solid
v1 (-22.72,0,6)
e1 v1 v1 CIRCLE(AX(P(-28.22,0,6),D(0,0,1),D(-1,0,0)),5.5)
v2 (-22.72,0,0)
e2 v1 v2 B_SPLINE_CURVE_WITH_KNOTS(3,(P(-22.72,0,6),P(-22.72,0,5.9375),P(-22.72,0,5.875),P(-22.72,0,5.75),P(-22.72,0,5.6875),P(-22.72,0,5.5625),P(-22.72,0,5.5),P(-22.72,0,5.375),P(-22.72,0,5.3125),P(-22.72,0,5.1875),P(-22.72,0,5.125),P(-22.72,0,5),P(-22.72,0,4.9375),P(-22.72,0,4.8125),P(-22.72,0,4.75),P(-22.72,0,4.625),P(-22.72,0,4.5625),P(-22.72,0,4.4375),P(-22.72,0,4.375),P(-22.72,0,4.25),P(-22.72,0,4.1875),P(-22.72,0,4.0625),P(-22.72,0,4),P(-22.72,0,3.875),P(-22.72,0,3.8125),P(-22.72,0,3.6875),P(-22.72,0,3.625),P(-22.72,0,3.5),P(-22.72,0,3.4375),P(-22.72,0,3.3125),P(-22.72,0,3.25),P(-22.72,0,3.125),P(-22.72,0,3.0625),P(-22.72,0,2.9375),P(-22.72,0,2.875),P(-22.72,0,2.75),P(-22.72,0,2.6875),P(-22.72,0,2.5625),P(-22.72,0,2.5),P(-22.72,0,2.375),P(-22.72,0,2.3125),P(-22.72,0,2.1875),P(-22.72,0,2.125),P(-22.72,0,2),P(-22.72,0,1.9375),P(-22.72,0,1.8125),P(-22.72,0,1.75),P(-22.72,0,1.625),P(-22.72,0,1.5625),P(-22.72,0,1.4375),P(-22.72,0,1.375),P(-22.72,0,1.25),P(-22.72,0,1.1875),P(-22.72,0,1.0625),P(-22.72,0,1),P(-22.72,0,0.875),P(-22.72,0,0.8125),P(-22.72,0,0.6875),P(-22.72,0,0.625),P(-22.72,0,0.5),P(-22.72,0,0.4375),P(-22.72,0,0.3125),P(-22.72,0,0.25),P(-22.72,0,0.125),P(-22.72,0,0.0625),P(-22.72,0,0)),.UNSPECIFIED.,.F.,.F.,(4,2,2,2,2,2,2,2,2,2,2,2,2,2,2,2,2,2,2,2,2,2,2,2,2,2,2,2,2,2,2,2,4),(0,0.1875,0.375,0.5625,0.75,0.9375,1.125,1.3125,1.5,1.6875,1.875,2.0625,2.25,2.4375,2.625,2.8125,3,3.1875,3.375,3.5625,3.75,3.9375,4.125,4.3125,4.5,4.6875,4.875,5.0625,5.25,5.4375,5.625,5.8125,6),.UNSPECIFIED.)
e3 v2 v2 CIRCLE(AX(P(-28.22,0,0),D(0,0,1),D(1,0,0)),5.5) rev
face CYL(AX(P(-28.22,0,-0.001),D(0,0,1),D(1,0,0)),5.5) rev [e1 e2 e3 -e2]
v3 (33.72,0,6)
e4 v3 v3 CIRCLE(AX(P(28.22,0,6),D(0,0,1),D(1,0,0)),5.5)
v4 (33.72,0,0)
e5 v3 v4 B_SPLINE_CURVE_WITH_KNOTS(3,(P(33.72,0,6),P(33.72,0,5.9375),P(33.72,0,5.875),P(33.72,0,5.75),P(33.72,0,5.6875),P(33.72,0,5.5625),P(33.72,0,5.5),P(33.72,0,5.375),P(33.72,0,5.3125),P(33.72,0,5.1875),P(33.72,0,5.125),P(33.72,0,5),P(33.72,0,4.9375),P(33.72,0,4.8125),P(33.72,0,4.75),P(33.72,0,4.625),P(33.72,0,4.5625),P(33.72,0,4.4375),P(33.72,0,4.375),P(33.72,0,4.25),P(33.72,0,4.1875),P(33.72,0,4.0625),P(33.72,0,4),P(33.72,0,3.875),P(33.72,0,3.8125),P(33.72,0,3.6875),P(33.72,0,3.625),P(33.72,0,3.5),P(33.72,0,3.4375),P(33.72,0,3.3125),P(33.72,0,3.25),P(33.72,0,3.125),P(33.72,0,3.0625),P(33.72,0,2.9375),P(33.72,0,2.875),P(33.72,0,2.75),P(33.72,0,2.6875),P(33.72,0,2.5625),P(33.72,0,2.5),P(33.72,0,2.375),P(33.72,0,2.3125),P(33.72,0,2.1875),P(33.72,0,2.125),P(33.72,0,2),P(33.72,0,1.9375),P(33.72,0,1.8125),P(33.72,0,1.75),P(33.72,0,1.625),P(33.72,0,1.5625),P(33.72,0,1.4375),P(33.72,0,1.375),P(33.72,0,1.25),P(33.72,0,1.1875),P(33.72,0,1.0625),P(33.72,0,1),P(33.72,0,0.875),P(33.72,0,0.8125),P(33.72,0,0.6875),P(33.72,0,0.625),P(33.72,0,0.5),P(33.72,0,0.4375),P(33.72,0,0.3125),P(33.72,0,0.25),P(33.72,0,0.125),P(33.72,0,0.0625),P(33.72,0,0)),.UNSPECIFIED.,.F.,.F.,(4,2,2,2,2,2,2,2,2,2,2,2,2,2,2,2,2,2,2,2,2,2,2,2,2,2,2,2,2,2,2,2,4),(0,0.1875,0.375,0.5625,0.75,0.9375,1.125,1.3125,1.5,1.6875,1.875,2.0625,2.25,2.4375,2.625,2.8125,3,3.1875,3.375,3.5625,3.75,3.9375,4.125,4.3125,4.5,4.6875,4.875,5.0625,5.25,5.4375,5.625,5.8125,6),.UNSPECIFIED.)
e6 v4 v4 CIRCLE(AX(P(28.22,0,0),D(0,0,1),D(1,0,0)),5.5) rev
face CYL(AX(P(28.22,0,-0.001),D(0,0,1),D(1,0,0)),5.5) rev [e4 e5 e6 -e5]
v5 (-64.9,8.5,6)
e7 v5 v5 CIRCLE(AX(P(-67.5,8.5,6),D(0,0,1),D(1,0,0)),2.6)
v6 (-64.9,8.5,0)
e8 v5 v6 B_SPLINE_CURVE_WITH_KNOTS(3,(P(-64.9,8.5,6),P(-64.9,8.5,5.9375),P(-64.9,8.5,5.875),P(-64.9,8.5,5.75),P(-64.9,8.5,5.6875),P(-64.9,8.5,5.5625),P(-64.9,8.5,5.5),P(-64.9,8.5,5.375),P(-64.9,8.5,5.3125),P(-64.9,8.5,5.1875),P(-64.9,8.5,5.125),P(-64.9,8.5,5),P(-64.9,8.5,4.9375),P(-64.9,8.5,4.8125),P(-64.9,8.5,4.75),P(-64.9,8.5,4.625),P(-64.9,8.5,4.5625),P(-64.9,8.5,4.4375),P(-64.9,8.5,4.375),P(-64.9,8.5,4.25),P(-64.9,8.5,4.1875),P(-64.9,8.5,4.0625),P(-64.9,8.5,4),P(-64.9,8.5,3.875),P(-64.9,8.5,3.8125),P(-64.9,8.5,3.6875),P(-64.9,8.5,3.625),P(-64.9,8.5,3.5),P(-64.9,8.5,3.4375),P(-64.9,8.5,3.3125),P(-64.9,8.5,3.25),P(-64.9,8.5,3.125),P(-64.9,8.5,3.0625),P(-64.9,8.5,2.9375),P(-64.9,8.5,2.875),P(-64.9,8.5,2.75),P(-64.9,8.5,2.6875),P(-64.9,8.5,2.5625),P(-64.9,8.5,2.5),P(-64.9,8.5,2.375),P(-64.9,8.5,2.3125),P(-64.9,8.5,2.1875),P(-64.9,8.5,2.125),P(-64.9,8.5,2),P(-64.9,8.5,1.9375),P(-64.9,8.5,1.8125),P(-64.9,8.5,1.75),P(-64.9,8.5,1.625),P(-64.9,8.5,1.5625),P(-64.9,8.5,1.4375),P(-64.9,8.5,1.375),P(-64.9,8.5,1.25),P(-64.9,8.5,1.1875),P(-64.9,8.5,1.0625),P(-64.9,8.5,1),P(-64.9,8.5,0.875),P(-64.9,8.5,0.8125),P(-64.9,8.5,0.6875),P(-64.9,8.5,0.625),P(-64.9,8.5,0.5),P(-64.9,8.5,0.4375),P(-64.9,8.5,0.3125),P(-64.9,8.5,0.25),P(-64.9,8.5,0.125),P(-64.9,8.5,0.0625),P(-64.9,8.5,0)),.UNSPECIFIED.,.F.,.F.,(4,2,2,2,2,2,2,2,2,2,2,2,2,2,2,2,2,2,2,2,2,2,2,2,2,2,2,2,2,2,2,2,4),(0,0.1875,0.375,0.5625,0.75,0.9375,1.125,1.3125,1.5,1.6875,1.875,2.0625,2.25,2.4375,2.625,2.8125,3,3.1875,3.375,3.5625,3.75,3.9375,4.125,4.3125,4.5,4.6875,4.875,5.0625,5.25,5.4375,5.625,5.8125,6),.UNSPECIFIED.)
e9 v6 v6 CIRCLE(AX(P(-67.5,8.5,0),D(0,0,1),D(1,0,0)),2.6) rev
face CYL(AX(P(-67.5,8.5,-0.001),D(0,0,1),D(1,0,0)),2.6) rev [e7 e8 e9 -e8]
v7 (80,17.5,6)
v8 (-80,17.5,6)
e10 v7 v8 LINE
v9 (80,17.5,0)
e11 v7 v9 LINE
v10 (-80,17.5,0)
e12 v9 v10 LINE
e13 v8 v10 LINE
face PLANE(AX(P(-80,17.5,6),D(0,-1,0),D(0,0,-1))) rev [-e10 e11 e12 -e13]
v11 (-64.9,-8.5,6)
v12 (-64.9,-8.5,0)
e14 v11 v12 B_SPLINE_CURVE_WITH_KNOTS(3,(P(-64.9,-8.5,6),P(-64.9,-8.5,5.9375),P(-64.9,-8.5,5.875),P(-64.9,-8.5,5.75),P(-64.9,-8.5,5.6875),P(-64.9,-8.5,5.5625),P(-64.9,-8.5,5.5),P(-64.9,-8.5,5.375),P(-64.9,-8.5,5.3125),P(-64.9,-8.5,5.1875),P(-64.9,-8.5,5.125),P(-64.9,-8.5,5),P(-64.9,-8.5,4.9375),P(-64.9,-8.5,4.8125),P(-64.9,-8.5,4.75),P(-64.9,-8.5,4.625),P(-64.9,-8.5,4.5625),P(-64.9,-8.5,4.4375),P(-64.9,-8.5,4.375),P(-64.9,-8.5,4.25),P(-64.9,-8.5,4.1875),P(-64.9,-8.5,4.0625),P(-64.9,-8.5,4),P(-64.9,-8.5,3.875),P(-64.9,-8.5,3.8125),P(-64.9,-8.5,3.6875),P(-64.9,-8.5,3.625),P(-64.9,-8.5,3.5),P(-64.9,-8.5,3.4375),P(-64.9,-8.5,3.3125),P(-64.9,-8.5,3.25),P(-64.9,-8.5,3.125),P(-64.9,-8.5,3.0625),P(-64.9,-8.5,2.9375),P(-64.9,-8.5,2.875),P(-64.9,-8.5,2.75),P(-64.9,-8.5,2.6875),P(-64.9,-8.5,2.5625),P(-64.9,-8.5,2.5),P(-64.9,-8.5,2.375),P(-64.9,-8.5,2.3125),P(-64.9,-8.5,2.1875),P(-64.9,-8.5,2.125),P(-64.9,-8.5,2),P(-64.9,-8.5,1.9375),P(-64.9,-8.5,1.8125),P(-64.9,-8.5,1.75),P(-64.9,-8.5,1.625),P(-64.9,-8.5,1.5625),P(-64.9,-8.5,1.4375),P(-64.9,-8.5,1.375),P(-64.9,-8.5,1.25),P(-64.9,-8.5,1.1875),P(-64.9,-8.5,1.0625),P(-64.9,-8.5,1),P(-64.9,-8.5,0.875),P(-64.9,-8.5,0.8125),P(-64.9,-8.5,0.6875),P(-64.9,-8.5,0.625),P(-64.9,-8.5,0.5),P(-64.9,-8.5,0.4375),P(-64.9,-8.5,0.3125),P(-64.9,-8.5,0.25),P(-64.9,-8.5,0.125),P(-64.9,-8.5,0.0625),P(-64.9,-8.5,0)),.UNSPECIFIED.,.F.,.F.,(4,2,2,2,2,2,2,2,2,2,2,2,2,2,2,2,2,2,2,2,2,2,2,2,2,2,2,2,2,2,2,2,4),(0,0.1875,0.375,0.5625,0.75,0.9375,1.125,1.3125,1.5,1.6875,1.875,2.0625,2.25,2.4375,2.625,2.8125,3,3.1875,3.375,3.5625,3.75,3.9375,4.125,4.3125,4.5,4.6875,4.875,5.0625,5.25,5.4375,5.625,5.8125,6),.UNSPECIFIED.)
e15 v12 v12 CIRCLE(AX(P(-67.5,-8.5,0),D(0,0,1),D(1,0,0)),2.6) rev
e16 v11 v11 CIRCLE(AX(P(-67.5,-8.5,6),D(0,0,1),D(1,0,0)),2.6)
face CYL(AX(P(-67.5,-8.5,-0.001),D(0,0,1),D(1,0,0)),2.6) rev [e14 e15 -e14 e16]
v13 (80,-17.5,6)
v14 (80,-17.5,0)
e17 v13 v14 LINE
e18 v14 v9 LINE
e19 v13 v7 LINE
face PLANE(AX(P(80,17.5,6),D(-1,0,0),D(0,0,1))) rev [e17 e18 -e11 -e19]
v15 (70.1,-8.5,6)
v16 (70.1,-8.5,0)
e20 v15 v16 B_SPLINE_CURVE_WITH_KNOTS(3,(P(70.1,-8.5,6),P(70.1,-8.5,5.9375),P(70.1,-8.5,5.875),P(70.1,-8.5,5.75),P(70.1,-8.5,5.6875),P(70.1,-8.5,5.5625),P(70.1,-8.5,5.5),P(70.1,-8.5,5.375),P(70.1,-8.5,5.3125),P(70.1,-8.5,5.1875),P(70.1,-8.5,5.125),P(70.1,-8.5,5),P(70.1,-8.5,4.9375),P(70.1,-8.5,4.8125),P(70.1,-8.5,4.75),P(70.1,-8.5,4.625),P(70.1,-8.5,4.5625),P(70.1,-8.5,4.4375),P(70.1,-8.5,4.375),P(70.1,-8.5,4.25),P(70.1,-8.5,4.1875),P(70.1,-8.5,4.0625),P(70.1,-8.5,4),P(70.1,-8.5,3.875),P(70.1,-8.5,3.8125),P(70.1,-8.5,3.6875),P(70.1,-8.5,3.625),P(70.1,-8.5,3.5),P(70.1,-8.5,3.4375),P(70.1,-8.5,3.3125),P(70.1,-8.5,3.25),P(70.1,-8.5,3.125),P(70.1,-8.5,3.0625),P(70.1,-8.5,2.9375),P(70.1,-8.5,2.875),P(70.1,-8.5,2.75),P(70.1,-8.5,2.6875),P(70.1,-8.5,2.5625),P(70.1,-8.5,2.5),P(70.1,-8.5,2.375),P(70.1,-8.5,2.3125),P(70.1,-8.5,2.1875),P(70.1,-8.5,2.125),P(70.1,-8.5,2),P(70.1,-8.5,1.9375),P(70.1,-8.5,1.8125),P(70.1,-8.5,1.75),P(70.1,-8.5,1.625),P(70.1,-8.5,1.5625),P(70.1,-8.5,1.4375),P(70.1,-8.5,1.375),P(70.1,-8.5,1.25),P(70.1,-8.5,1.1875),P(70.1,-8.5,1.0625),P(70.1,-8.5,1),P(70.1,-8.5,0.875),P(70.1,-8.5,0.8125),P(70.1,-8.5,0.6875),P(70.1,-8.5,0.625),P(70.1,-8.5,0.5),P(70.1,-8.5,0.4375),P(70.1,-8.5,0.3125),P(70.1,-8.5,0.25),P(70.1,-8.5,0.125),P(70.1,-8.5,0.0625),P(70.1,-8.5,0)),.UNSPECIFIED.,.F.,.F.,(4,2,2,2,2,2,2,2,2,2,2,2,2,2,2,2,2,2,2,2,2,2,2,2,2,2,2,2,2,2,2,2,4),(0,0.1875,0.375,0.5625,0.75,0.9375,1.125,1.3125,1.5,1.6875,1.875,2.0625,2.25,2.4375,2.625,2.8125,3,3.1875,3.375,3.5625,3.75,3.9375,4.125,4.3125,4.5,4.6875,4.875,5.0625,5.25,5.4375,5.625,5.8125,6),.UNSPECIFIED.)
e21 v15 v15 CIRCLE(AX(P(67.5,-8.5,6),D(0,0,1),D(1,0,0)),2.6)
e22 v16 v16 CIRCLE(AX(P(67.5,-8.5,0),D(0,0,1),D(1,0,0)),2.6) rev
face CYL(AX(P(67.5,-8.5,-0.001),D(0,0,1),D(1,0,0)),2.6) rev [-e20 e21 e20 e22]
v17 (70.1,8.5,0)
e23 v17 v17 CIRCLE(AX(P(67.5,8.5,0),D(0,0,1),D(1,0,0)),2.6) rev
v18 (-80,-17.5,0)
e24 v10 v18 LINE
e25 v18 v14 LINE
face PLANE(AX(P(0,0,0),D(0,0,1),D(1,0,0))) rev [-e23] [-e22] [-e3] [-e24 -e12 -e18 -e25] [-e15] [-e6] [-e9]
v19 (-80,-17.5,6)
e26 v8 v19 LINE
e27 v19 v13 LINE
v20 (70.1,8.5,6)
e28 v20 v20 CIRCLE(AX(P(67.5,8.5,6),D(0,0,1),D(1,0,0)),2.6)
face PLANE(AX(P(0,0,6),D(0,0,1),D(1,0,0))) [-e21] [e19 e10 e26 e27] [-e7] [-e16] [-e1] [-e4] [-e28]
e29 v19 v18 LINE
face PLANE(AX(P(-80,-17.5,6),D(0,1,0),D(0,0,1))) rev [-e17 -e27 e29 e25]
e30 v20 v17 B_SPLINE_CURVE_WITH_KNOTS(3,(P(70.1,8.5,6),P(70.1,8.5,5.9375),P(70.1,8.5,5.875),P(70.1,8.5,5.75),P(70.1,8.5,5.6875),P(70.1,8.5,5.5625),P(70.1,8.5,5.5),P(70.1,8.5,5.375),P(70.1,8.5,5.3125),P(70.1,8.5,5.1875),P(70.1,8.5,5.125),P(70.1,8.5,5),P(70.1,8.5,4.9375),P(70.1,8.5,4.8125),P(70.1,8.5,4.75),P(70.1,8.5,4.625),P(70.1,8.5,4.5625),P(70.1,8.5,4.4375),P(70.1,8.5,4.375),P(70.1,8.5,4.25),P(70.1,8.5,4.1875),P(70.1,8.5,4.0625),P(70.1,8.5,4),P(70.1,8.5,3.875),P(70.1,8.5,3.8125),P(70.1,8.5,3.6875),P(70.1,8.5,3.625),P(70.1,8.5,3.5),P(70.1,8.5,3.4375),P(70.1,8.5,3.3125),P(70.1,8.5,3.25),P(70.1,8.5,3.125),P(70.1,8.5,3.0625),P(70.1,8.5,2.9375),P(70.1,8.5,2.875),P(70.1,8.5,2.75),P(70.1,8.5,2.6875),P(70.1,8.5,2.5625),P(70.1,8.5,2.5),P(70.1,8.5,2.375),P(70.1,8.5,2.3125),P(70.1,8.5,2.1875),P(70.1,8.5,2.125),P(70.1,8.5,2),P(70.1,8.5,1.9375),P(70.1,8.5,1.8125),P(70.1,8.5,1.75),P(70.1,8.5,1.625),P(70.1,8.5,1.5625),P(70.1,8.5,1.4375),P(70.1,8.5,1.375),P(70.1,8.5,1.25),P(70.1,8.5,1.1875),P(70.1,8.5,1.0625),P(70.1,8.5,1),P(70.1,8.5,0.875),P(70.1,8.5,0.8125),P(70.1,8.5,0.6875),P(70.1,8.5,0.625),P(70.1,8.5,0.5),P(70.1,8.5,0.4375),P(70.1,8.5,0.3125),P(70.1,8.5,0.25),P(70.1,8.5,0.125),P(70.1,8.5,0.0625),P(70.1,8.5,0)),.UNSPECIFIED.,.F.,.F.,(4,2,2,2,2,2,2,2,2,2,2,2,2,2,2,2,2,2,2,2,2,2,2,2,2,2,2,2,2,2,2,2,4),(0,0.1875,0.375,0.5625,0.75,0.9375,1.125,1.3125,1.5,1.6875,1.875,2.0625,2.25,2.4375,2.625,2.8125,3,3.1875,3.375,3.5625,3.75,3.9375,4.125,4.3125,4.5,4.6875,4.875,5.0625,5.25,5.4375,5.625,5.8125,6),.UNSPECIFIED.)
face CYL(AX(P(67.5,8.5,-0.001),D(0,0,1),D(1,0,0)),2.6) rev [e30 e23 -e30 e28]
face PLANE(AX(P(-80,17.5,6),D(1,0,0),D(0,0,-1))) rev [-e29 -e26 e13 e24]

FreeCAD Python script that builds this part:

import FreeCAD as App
import Part
import Sketcher
from FreeCAD import Vector
Q = App.Units.Quantity


def add_polygon(sketch, points):
    """Adds a closed chain of lines whose ends are joined by coincident constraints."""
    first, n = sketch.GeometryCount, len(points)
    for a, b in zip(points, points[1:] + points[:1]):
        sketch.addGeometry(Part.LineSegment(App.Vector(*a, 0), App.Vector(*b, 0)), False)
    for i in range(n):
        sketch.addConstraint(Sketcher.Constraint("Coincident", first + i, 2, first + (i + 1) % n, 1))

doc = App.newDocument("Part")
body = doc.addObject("PartDesign::Body", "Body")

# Sketch on XY plane
sketch1 = doc.addObject("Sketcher::SketchObject", "Sketch")
body.addObject(sketch1)
sketch1.AttachmentSupport = (doc.XY_Plane, [""])
sketch1.MapMode = "FlatFace"
add_polygon(sketch1, [(-80, 18), (-80, -18), (80, -18), (80, 18)])  # lines 0-3
sketch1.addConstraint([
    Sketcher.Constraint("Vertical", 0),
    Sketcher.Constraint("Horizontal", 1),
    Sketcher.Constraint("Vertical", 2),
    Sketcher.Constraint("Horizontal", 3),
    Sketcher.Constraint("Symmetric", 0, 2, 2, 2, -1, 1),
    Sketcher.Constraint("DistanceX", 1, 1, 1, 2, Q("160 mm")),
    Sketcher.Constraint("DistanceY", 0, 2, 0, 1, Q("35 mm")),
])
pad1 = doc.addObject("PartDesign::Pad", "Pad")
body.addObject(pad1)
pad1.Profile = sketch1
pad1.Length = 6

# Sketch on XY plane
sketch2 = doc.addObject("Sketcher::SketchObject", "Sketch001")
body.addObject(sketch2)
sketch2.AttachmentSupport = (doc.XY_Plane, [""])
sketch2.MapMode = "FlatFace"
sketch2.AttachmentOffset = App.Placement(Vector(0, 0, 6), App.Rotation())
sketch2.addGeometry(Part.Circle(Vector(67.5, 8.5, 0), Vector(0, 0, 1), 2.6), False)
sketch2.addConstraint([
    Sketcher.Constraint("Diameter", 0, Q("5.2 mm")),
    Sketcher.Constraint("DistanceX", -1, 1, 0, 3, Q("67.5 mm")),
    Sketcher.Constraint("DistanceY", -1, 1, 0, 3, Q("8.5 mm")),
])
pocket1 = doc.addObject("PartDesign::Pocket", "Pocket")
body.addObject(pocket1)
pocket1.Profile = sketch2
pocket1.Type = "UpToFirst"

# Sketch on XY plane
sketch3 = doc.addObject("Sketcher::SketchObject", "Sketch002")
body.addObject(sketch3)
sketch3.AttachmentSupport = (doc.XY_Plane, [""])
sketch3.MapMode = "FlatFace"
sketch3.AttachmentOffset = App.Placement(Vector(0, 0, 6), App.Rotation())
sketch3.addGeometry(Part.Circle(Vector(67.5, -8.5, 0), Vector(0, 0, 1), 2.6), False)
sketch3.addConstraint([
    Sketcher.Constraint("Diameter", 0, Q("5.2 mm")),
    Sketcher.Constraint("DistanceX", -1, 1, 0, 3, Q("67.5 mm")),
    Sketcher.Constraint("DistanceY", 0, 3, -1, 1, Q("8.5 mm")),
])
pocket2 = doc.addObject("PartDesign::Pocket", "Pocket001")
body.addObject(pocket2)
pocket2.Profile = sketch3
pocket2.Type = "UpToFirst"

# Sketch on XY plane
sketch4 = doc.addObject("Sketcher::SketchObject", "Sketch003")
body.addObject(sketch4)
sketch4.AttachmentSupport = (doc.XY_Plane, [""])
sketch4.MapMode = "FlatFace"
sketch4.AttachmentOffset = App.Placement(Vector(0, 0, 6), App.Rotation())
sketch4.addGeometry(Part.Circle(Vector(-67.5, 8.5, 0), Vector(0, 0, 1), 2.6), False)
sketch4.addConstraint([
    Sketcher.Constraint("Diameter", 0, Q("5.2 mm")),
    Sketcher.Constraint("DistanceX", 0, 3, -1, 1, Q("67.5 mm")),
    Sketcher.Constraint("DistanceY", -1, 1, 0, 3, Q("8.5 mm")),
])
pocket3 = doc.addObject("PartDesign::Pocket", "Pocket002")
body.addObject(pocket3)
pocket3.Profile = sketch4
pocket3.Type = "UpToFirst"

# Sketch on XY plane
sketch5 = doc.addObject("Sketcher::SketchObject", "Sketch004")
body.addObject(sketch5)
sketch5.AttachmentSupport = (doc.XY_Plane, [""])
sketch5.MapMode = "FlatFace"
sketch5.AttachmentOffset = App.Placement(Vector(0, 0, 6), App.Rotation())
sketch5.addGeometry(Part.Circle(Vector(-67.5, -8.5, 0), Vector(0, 0, 1), 2.6), False)
sketch5.addConstraint([
    Sketcher.Constraint("Diameter", 0, Q("5.2 mm")),
    Sketcher.Constraint("DistanceX", 0, 3, -1, 1, Q("67.5 mm")),
    Sketcher.Constraint("DistanceY", 0, 3, -1, 1, Q("8.5 mm")),
])
pocket4 = doc.addObject("PartDesign::Pocket", "Pocket003")
body.addObject(pocket4)
pocket4.Profile = sketch5
pocket4.Type = "UpToFirst"

# Sketch on XY plane
sketch6 = doc.addObject("Sketcher::SketchObject", "Sketch005")
body.addObject(sketch6)
sketch6.AttachmentSupport = (doc.XY_Plane, [""])
sketch6.MapMode = "FlatFace"
sketch6.AttachmentOffset = App.Placement(Vector(0, 0, 6), App.Rotation())
sketch6.addGeometry(Part.Circle(Vector(28, 0, 0), Vector(0, 0, 1), 6), False)
sketch6.addConstraint([
    Sketcher.Constraint("PointOnObject", 0, 3, -1),
    Sketcher.Constraint("Diameter", 0, Q("11 mm")),
    Sketcher.Constraint("DistanceX", -1, 1, 0, 3, Q("28.22 mm")),
])
pocket5 = doc.addObject("PartDesign::Pocket", "Pocket004")
body.addObject(pocket5)
pocket5.Profile = sketch6
pocket5.Type = "UpToFirst"

# Sketch on XY plane
sketch7 = doc.addObject("Sketcher::SketchObject", "Sketch006")
body.addObject(sketch7)
sketch7.AttachmentSupport = (doc.XY_Plane, [""])
sketch7.MapMode = "FlatFace"
sketch7.AttachmentOffset = App.Placement(Vector(0, 0, 6), App.Rotation())
sketch7.addGeometry(Part.Circle(Vector(-28, 0, 0), Vector(0, 0, 1), 6), False)
sketch7.addConstraint([
    Sketcher.Constraint("PointOnObject", 0, 3, -1),
    Sketcher.Constraint("Diameter", 0, Q("11 mm")),
    Sketcher.Constraint("DistanceX", 0, 3, -1, 1, Q("28.22 mm")),
])
pocket6 = doc.addObject("PartDesign::Pocket", "Pocket005")
body.addObject(pocket6)
pocket6.Profile = sketch7
pocket6.Type = "UpToFirst"

doc.recompute()
